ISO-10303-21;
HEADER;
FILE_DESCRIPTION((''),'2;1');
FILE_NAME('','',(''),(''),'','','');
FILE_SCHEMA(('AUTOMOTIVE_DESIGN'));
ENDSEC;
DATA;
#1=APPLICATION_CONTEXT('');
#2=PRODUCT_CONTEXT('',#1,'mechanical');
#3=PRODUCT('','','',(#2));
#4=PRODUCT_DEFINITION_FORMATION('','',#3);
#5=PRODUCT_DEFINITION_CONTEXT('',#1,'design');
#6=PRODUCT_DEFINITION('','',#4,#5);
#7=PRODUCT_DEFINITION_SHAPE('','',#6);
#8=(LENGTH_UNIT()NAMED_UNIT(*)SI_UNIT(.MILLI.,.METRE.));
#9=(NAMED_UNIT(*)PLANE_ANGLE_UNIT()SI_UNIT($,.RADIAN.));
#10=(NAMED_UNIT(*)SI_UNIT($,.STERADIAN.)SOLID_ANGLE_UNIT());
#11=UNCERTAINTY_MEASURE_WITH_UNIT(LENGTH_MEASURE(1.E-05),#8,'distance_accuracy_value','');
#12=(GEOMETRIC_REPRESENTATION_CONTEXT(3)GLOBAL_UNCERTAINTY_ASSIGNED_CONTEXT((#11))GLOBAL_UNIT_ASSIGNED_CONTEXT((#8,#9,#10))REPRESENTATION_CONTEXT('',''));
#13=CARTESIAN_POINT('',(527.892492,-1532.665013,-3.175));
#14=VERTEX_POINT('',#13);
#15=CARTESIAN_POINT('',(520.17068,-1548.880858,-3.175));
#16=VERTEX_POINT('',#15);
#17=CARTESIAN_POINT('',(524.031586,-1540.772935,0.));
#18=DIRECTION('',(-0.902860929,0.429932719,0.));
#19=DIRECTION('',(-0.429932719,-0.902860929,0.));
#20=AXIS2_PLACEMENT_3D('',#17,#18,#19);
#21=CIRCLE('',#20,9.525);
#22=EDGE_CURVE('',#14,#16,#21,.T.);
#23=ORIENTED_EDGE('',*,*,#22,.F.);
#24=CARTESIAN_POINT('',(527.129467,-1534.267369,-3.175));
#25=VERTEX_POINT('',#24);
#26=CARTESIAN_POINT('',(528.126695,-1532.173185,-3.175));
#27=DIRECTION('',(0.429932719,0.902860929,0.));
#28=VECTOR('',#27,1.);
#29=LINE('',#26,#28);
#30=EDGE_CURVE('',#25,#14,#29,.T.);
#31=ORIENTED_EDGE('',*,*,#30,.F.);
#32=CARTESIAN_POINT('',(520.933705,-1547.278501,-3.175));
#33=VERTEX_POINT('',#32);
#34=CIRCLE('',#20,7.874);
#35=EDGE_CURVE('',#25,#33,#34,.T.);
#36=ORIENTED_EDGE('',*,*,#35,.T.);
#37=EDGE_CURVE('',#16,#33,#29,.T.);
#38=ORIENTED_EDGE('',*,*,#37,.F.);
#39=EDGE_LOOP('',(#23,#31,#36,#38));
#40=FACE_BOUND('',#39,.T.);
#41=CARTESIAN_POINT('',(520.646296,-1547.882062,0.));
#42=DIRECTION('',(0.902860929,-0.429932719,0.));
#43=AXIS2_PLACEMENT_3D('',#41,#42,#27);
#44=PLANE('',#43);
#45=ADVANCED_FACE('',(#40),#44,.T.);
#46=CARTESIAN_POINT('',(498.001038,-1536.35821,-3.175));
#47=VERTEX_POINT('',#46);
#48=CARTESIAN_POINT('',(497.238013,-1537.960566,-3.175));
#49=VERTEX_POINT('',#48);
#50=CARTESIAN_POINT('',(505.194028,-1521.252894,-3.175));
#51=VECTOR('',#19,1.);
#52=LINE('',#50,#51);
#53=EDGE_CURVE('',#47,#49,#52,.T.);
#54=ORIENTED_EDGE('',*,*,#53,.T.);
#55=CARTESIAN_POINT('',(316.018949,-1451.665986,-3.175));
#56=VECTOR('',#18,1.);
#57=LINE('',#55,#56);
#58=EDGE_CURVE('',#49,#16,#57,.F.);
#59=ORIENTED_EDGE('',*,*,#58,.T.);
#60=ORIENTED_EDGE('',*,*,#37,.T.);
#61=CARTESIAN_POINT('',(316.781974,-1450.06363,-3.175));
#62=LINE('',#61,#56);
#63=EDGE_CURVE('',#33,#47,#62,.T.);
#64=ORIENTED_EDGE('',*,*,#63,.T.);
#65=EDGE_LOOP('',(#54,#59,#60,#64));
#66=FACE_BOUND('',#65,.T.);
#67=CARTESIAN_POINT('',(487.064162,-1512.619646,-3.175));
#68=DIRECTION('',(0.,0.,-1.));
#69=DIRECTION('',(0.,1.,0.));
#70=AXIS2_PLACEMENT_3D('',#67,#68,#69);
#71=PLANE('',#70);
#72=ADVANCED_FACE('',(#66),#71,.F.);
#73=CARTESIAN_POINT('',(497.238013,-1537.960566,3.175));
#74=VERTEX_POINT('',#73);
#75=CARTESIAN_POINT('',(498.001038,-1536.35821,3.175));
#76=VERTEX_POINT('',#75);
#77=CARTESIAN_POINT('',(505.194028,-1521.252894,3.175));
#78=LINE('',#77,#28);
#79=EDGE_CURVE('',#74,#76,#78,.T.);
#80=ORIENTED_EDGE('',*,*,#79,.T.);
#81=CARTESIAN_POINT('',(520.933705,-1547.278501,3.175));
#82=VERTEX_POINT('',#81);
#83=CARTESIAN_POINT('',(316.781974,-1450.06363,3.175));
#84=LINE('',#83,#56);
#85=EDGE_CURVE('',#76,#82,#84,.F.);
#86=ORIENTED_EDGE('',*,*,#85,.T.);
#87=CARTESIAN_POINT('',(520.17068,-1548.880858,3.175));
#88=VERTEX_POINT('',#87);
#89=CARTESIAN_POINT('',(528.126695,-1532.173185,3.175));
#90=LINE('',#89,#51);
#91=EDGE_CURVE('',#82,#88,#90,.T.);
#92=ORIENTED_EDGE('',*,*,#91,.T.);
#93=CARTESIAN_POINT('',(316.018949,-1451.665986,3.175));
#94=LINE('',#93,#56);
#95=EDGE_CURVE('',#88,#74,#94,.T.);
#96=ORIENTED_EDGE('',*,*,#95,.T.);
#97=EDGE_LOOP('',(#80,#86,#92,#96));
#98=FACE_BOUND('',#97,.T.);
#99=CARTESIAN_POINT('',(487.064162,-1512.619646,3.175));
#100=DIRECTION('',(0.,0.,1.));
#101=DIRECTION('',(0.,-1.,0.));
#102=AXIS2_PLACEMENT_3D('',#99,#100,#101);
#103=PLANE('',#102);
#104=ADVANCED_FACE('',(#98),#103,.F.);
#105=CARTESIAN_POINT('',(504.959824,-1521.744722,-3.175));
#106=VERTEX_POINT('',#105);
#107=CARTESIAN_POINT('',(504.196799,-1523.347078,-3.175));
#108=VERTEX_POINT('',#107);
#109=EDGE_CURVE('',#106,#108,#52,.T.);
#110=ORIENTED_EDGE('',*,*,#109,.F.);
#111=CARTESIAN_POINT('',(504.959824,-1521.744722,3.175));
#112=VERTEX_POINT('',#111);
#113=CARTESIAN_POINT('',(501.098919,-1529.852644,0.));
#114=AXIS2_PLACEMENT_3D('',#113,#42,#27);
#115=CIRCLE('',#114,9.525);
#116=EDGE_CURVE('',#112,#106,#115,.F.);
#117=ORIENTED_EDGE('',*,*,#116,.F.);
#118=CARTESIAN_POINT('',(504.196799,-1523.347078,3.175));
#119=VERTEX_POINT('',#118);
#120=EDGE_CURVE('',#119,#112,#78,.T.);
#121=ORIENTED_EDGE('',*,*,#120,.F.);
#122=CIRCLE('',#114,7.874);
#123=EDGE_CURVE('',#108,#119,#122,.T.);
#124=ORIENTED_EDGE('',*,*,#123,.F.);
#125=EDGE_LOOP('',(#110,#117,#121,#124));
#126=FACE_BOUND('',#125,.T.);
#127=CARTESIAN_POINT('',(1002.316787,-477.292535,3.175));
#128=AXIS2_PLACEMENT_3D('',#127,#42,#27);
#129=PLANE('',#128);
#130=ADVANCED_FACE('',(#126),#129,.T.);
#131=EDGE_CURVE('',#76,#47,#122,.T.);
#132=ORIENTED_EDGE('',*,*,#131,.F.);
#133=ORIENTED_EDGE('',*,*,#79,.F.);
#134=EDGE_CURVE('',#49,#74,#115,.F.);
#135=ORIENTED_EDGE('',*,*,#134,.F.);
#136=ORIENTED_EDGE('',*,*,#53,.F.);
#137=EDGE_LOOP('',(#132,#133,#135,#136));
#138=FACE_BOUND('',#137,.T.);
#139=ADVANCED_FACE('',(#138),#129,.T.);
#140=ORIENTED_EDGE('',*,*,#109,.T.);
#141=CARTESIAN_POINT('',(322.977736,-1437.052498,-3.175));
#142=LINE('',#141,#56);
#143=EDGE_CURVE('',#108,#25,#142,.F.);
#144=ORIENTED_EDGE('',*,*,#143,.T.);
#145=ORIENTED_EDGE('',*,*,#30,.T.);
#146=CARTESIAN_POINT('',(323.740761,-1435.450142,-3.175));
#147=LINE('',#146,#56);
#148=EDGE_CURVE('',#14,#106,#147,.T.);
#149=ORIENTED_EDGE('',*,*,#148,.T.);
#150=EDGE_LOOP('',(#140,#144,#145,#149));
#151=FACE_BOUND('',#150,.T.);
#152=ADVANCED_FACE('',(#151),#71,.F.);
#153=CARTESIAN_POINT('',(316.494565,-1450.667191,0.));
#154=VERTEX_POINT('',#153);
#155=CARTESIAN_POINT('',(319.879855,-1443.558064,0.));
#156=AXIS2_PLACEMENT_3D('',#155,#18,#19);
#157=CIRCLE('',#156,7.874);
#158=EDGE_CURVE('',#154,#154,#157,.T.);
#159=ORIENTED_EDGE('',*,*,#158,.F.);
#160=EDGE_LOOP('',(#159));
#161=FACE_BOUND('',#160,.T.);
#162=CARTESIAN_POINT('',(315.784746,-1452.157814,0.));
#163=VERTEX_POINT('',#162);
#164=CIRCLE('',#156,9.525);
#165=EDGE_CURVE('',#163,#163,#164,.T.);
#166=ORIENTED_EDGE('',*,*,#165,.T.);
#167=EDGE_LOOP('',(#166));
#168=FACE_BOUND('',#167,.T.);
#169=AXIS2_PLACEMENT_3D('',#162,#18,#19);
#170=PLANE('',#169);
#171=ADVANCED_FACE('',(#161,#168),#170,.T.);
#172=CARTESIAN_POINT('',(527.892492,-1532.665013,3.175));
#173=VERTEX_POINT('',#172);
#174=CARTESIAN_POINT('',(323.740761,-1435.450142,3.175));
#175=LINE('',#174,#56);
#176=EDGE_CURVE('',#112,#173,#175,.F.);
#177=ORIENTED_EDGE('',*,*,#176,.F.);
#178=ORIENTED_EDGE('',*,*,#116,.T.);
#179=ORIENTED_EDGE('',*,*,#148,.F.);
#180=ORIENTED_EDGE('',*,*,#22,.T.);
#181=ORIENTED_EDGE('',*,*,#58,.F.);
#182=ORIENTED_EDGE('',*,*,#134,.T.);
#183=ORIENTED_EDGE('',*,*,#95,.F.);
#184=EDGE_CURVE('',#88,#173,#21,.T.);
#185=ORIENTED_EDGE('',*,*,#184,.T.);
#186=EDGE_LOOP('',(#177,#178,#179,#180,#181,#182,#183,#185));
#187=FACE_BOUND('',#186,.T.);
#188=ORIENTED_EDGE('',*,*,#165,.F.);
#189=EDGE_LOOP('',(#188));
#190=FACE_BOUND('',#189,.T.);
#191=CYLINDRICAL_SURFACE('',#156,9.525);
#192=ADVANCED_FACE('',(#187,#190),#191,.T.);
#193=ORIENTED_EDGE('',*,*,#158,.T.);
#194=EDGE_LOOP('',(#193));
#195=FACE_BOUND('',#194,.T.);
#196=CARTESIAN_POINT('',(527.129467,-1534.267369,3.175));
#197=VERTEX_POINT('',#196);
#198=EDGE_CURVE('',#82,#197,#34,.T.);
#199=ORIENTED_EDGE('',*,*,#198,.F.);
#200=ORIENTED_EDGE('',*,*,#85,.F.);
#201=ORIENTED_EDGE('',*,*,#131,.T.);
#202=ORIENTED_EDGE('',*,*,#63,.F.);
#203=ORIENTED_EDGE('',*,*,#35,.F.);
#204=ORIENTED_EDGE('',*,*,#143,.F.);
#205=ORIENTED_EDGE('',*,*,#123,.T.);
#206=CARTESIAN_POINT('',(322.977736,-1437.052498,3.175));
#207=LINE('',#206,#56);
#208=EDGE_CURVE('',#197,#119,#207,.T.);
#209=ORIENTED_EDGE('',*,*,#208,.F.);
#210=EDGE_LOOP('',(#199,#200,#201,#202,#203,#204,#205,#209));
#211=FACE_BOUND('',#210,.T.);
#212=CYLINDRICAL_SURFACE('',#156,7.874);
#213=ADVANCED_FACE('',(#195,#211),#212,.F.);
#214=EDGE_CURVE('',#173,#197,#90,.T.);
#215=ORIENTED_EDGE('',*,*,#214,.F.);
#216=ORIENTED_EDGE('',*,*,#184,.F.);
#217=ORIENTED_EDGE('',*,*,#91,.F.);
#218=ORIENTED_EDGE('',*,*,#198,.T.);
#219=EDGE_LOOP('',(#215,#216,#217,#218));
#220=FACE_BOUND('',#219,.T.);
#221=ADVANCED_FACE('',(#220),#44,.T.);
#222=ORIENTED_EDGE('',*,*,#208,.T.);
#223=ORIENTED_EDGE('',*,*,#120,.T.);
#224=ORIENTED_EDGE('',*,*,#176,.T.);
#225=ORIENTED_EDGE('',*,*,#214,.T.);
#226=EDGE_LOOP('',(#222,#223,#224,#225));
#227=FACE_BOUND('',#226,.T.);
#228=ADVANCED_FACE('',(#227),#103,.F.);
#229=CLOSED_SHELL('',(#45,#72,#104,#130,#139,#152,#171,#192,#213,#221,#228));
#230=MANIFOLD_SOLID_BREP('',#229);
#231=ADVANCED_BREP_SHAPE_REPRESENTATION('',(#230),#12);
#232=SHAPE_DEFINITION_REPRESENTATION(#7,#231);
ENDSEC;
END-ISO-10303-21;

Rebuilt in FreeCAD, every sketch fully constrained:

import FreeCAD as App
import Part
import Sketcher

V = App.Vector
Q = App.Units.Quantity

doc = App.newDocument("Part")
body = doc.addObject("PartDesign::Body", "Body")

# Sketch on XY plane
sketch1 = body.newObject("Sketcher::SketchObject", "Sketch")
sketch1.AttachmentSupport = (doc.getObject("XY_Plane"), [""])
sketch1.MapMode = "FlatFace"
sketch1.addGeometry([
    Part.LineSegment(V(519.936477, -1549.372686, 0), V(520.646296, -1547.882062, 0)),
    Part.LineSegment(V(520.646296, -1547.882062, 0), V(316.494565, -1450.667191, 0)),
    Part.LineSegment(V(316.494565, -1450.667191, 0), V(315.784746, -1452.157814, 0)),
    Part.LineSegment(V(315.784746, -1452.157814, 0), V(519.936477, -1549.372686, 0)),
], False)
sketch1.addGeometry(Part.LineSegment(V(319.879855, -1443.558064, 0), V(524.031586, -1540.772935, 0)), True)  # axis
sketch1.addConstraint([
    Sketcher.Constraint("Coincident", 0, 2, 1, 1),
    Sketcher.Constraint("Coincident", 1, 2, 2, 1),
    Sketcher.Constraint("Coincident", 2, 2, 3, 1),
    Sketcher.Constraint("Coincident", 3, 2, 0, 1),
    Sketcher.Constraint("Perpendicular", 0, 1),
    Sketcher.Constraint("Perpendicular", 1, 2),
    Sketcher.Constraint("Perpendicular", 2, 3),
    Sketcher.Constraint("Parallel", 3, 4),
    Sketcher.Constraint("Equal", 3, 4),
    Sketcher.Constraint("Distance", 0, Q("0.065 in")),
    Sketcher.Constraint("DistanceY", 0, 2, 4, 1, 104.323998),
    Sketcher.Constraint("DistanceY", 1, 2, -1, 1, 1450.667191),
    Sketcher.Constraint("DistanceX", 1, 2, 0, 2, 204.151731),
    Sketcher.Constraint("DistanceY", 0, 2, 1, 2, 97.214871),
    Sketcher.Constraint("DistanceX", 1, 2, 4, 1, 3.38529),
    Sketcher.Constraint("DistanceX", -1, 1, 0, 2, 520.646296),
])
revolution = body.newObject("PartDesign::Revolution", "Revolution")
revolution.Profile = sketch1
revolution.ReferenceAxis = (sketch1, ["Axis0"])
revolution.Angle = 360

# Sketch on an angled plane
sketch2 = body.newObject("Sketcher::SketchObject", "Sketch001")
sketch2.Placement = App.Placement(V(1002.316787, -477.292535, 0), App.Rotation(V(0, 0, -1), V(0.429932719, 0.902860929, 0), V(0.902860929, -0.429932719, 0), "ZXY"))
sketch2.addGeometry([
    Part.LineSegment(V(-3.175, -1156.280359, 0), V(-3.175, -1175.330359, 0)),
    Part.LineSegment(V(-3.175, -1175.330359, 0), V(3.175, -1175.330359, 0)),
    Part.LineSegment(V(3.175, -1175.330359, 0), V(3.175, -1156.280359, 0)),
    Part.LineSegment(V(3.175, -1156.280359, 0), V(-3.175, -1156.280359, 0)),
], False)
sketch2.addConstraint([
    Sketcher.Constraint("Coincident", 0, 2, 1, 1),
    Sketcher.Constraint("Coincident", 1, 2, 2, 1),
    Sketcher.Constraint("Coincident", 2, 2, 3, 1),
    Sketcher.Constraint("Coincident", 3, 2, 0, 1),
    Sketcher.Constraint("Vertical", 0),
    Sketcher.Constraint("Horizontal", 1),
    Sketcher.Constraint("Vertical", 2),
    Sketcher.Constraint("Horizontal", 3),
    Sketcher.Constraint("DistanceX", 1, 1, 1, 2, Q("0.25 in")),
    Sketcher.Constraint("DistanceY", 0, 2, 0, 1, Q("0.75 in")),
    Sketcher.Constraint("DistanceX", 0, 2, -1, 1, Q("0.125 in")),
    Sketcher.Constraint("DistanceY", 0, 2, -1, 1, 1175.330359),
])
pocket1 = body.newObject("PartDesign::Pocket", "Pocket")
pocket1.Profile = sketch2
pocket1.Length = Q("1 in")
pocket1.Reversed = True

doc.recompute()
